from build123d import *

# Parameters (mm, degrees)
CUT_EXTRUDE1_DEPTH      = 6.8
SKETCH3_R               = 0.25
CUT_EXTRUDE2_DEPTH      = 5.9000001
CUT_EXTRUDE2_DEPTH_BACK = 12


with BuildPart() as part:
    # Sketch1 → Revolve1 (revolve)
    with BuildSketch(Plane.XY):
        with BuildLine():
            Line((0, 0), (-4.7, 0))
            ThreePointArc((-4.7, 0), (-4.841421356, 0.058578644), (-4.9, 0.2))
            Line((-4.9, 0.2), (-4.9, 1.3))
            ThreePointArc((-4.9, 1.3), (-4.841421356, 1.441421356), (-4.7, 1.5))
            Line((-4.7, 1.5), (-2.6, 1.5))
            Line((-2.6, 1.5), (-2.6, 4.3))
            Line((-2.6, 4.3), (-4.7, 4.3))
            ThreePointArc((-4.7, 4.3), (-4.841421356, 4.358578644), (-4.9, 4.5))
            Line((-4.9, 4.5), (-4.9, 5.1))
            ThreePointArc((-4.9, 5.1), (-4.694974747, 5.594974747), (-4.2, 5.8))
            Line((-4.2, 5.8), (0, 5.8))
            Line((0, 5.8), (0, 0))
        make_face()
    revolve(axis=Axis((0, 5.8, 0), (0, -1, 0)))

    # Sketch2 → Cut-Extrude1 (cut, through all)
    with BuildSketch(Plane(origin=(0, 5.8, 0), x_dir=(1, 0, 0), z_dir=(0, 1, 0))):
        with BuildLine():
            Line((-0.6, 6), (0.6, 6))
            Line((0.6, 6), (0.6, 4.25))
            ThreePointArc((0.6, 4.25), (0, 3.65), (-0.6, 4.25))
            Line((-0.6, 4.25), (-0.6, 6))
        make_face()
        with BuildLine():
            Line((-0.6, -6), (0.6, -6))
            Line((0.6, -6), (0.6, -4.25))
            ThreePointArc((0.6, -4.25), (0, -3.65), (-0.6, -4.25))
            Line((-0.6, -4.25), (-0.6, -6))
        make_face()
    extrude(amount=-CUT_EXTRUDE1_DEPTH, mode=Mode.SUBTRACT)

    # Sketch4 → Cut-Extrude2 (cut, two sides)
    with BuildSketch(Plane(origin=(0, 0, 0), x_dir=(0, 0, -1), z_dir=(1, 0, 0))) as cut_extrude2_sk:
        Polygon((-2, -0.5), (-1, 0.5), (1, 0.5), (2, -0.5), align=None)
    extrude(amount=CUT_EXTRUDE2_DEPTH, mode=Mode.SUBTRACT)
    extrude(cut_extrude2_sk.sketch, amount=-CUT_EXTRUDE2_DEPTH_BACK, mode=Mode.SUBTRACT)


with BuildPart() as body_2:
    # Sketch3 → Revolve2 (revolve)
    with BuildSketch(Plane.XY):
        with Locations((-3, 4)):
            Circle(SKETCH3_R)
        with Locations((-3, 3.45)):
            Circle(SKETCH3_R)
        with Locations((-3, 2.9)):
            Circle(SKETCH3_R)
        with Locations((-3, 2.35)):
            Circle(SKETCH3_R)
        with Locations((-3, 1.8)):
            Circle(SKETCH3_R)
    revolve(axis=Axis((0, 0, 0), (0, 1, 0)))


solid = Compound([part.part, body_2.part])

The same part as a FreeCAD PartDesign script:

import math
import FreeCAD as App
import Part
import Sketcher

V = App.Vector


def add_polygon(sketch, points):
    """Adds a closed chain of lines whose ends are joined by coincident constraints."""
    first, n = sketch.GeometryCount, len(points)
    for a, b in zip(points, points[1:] + points[:1]):
        sketch.addGeometry(Part.LineSegment(App.Vector(*a, 0), App.Vector(*b, 0)), False)
    for i in range(n):
        sketch.addConstraint(Sketcher.Constraint("Coincident", first + i, 2, first + (i + 1) % n, 1))

doc = App.newDocument("Part")
params = doc.addObject("Spreadsheet::Sheet", "Params")
for row, (alias, value) in enumerate([
    ("sketch1_radius", "0.7 mm"),
    ("sketch1_radius2", "0.2 mm"),
    ("sketch1_width", "4.7 mm"),
    ("sketch1_width2", "2.1 mm"),
    ("sketch1_height", "5.8 mm"),
    ("revolution_angle", "360 deg"),
    ("sketch2_radius", "0.6 mm"),
    ("sketch2_height", "1.75 mm"),
    ("sketch3_height", "4 mm"),
    ("sketch3_height2", "2 mm"),
    ("sketch4_diameter", "0.5 mm"),
    ("revolution2_angle", "360 deg"),
], start=1):
    params.set(f"A{row}", alias)
    params.set(f"B{row}", "=" + value)
    params.setAlias(f"B{row}", alias)

body = doc.addObject("PartDesign::Body", "Body")

sketch1 = doc.addObject("Sketcher::SketchObject", "Sketch")
body.addObject(sketch1)
sketch1.AttachmentSupport = (doc.XY_Plane, [""])
sketch1.MapMode = "FlatFace"
sketch1.addGeometry([
    Part.LineSegment(V(-4.7, 0, 0), V(0, 0, 0)),
    Part.LineSegment(V(0, 0, 0), V(0, 5.8, 0)),
    Part.LineSegment(V(0, 5.8, 0), V(-4.2, 5.8, 0)),
    Part.ArcOfCircle(Part.Circle(V(-4.2, 5.1, 0), V(0, 0, 1), 0.7), math.radians(90), math.radians(180)),
    Part.LineSegment(V(-4.9, 5.1, 0), V(-4.9, 4.5, 0)),
    Part.ArcOfCircle(Part.Circle(V(-4.7, 4.5, 0), V(0, 0, 1), 0.2), math.radians(-180), math.radians(-90)),
    Part.LineSegment(V(-4.7, 4.3, 0), V(-2.6, 4.3, 0)),
    Part.LineSegment(V(-2.6, 4.3, 0), V(-2.6, 1.5, 0)),
    Part.LineSegment(V(-2.6, 1.5, 0), V(-4.7, 1.5, 0)),
    Part.ArcOfCircle(Part.Circle(V(-4.7, 1.3, 0), V(0, 0, 1), 0.2), math.radians(90), math.radians(180)),
    Part.LineSegment(V(-4.9, 1.3, 0), V(-4.9, 0.2, 0)),
    Part.ArcOfCircle(Part.Circle(V(-4.7, 0.2, 0), V(0, 0, 1), 0.2), math.radians(-180), math.radians(-90)),
], False)
sketch1.addConstraint([
    Sketcher.Constraint("Coincident", 0, 2, 1, 1),
    Sketcher.Constraint("Coincident", 1, 2, 2, 1),
    Sketcher.Constraint("Tangent", 2, 2, 3, 1),
    Sketcher.Constraint("Tangent", 3, 2, 4, 1),
    Sketcher.Constraint("Tangent", 4, 2, 5, 1),
    Sketcher.Constraint("Tangent", 5, 2, 6, 1),
    Sketcher.Constraint("Coincident", 6, 2, 7, 1),
    Sketcher.Constraint("Coincident", 7, 2, 8, 1),
    Sketcher.Constraint("Tangent", 8, 2, 9, 1),
    Sketcher.Constraint("Tangent", 9, 2, 10, 1),
    Sketcher.Constraint("Tangent", 10, 2, 11, 1),
    Sketcher.Constraint("Tangent", 11, 2, 0, 1),
    Sketcher.Constraint("Horizontal", 0),
    Sketcher.Constraint("Vertical", 1),
    Sketcher.Constraint("Horizontal", 2),
    Sketcher.Constraint("Vertical", 4),
    Sketcher.Constraint("Horizontal", 6),
    Sketcher.Constraint("Vertical", 7),
    Sketcher.Constraint("Horizontal", 8),
    Sketcher.Constraint("Vertical", 10),
    Sketcher.Constraint("Coincident", 0, 2, -1, 1),
    Sketcher.Constraint("Equal", 5, 9),
    Sketcher.Constraint("Equal", 9, 11),
    Sketcher.Constraint("Vertical", 5, 3, 9, 3),
    Sketcher.Constraint("Radius", 3, 0.7),
    Sketcher.Constraint("Radius", 5, 0.2),
    Sketcher.Constraint("DistanceX", 0, 1, 0, 2, 4.7),
    Sketcher.Constraint("DistanceX", 6, 1, 6, 2, 2.1),
    Sketcher.Constraint("DistanceY", 1, 1, 1, 2, 5.8),
    Sketcher.Constraint("DistanceY", 4, 2, 4, 1, 0.6),
    Sketcher.Constraint("DistanceY", 7, 2, 7, 1, 2.8),
])
sketch1.setExpression("Constraints[24]", "Params.sketch1_radius")
sketch1.setExpression("Constraints[25]", "Params.sketch1_radius2")
sketch1.setExpression("Constraints[26]", "Params.sketch1_width")
sketch1.setExpression("Constraints[27]", "Params.sketch1_width2")
sketch1.setExpression("Constraints[28]", "Params.sketch1_height")
revolution = doc.addObject("PartDesign::Revolution", "Revolution")
body.addObject(revolution)
revolution.Profile = sketch1
revolution.ReferenceAxis = (sketch1, ["V_Axis"])
revolution.setExpression("Angle", "Params.revolution_angle")

sketch2 = doc.addObject("Sketcher::SketchObject", "Sketch001")
body.addObject(sketch2)
sketch2.AttachmentSupport = (doc.XZ_Plane, [""])
sketch2.MapMode = "FlatFace"
sketch2.AttachmentOffset = App.Placement(V(0, 0, -5.8), App.Rotation())
sketch2.addGeometry([
    Part.LineSegment(V(0.6, -6, 0), V(-0.6, -6, 0)),
    Part.LineSegment(V(-0.6, -6, 0), V(-0.6, -4.25, 0)),
    Part.ArcOfCircle(Part.Circle(V(0, -4.25, 0), V(0, 0, 1), 0.6), math.radians(0), math.radians(180)),
    Part.LineSegment(V(0.6, -4.25, 0), V(0.6, -6, 0)),
    Part.LineSegment(V(-0.6, 6, 0), V(0.6, 6, 0)),
    Part.LineSegment(V(0.6, 6, 0), V(0.6, 4.25, 0)),
    Part.ArcOfCircle(Part.Circle(V(0, 4.25, 0), V(0, 0, 1), 0.6), math.radians(180), math.radians(360)),
    Part.LineSegment(V(-0.6, 4.25, 0), V(-0.6, 6, 0)),
], False)
sketch2.addConstraint([
    Sketcher.Constraint("Coincident", 0, 2, 1, 1),
    Sketcher.Constraint("Tangent", 1, 2, 2, 2),
    Sketcher.Constraint("Tangent", 2, 1, 3, 1),
    Sketcher.Constraint("Coincident", 3, 2, 0, 1),
    Sketcher.Constraint("Coincident", 4, 2, 5, 1),
    Sketcher.Constraint("Tangent", 5, 2, 6, 2),
    Sketcher.Constraint("Tangent", 6, 1, 7, 1),
    Sketcher.Constraint("Coincident", 7, 2, 4, 1),
    Sketcher.Constraint("Horizontal", 0),
    Sketcher.Constraint("Vertical", 1),
    Sketcher.Constraint("Vertical", 3),
    Sketcher.Constraint("Horizontal", 4),
    Sketcher.Constraint("Vertical", 5),
    Sketcher.Constraint("Vertical", 7),
    Sketcher.Constraint("Equal", 2, 6),
    Sketcher.Constraint("Symmetric", 2, 3, 6, 3, -1, 1),
    Sketcher.Constraint("Symmetric", 3, 2, 4, 2, -1),
    Sketcher.Constraint("Radius", 2, 0.6),
    Sketcher.Constraint("DistanceY", 0, 2, -1, 1, 6.0),
    Sketcher.Constraint("DistanceY", 1, 1, 1, 2, 1.75),
])
sketch2.setExpression("Constraints[17]", "Params.sketch2_radius")
sketch2.setExpression("Constraints[19]", "Params.sketch2_height")
pocket1 = doc.addObject("PartDesign::Pocket", "Pocket")
body.addObject(pocket1)
pocket1.Profile = sketch2
pocket1.Type = "ThroughAll"
pocket1.Reversed = True

sketch3 = doc.addObject("Sketcher::SketchObject", "Sketch002")
body.addObject(sketch3)
sketch3.AttachmentSupport = (doc.YZ_Plane, [""])
sketch3.MapMode = "FlatFace"
add_polygon(sketch3, [(0.5, 1), (-0.5, 2), (-0.5, -2), (0.5, -1)])
sketch3.addConstraint([
    Sketcher.Constraint("Vertical", 1),
    Sketcher.Constraint("Vertical", 3),
    Sketcher.Constraint("Perpendicular", 0, 2),
    Sketcher.Constraint("Equal", 0, 2),
    Sketcher.Constraint("DistanceY", 1, 2, 1, 1, 4.0),
    Sketcher.Constraint("DistanceY", 3, 1, 3, 2, 2.0),
    Sketcher.Constraint("DistanceY", -1, 1, 0, 2, 2.0),
    Sketcher.Constraint("DistanceX", 0, 2, -1, 1, 0.5),
])
sketch3.setExpression("Constraints[8]", "Params.sketch3_height")
sketch3.setExpression("Constraints[9]", "Params.sketch3_height2")
pocket2 = doc.addObject("PartDesign::Pocket", "Pocket001")
body.addObject(pocket2)
pocket2.Profile = sketch3
pocket2.Type = "ThroughAll"
pocket2.Midplane = True
body2 = doc.addObject("PartDesign::Body", "Body001")
body2.AllowCompound = True

sketch4 = doc.addObject("Sketcher::SketchObject", "Sketch003")
body2.addObject(sketch4)
sketch4.AttachmentSupport = (doc.getObject("XY_Plane001"), [""])
sketch4.MapMode = "FlatFace"
sketch4.addGeometry([
    Part.Circle(V(-3, 4, 0), V(0, 0, 1), 0.25),
    Part.Circle(V(-3, 3.45, 0), V(0, 0, 1), 0.25),
    Part.Circle(V(-3, 2.9, 0), V(0, 0, 1), 0.25),
    Part.Circle(V(-3, 2.35, 0), V(0, 0, 1), 0.25),
    Part.Circle(V(-3, 1.8, 0), V(0, 0, 1), 0.25),
], False)
sketch4.addConstraint([
    Sketcher.Constraint("Equal", 0, 1),
    Sketcher.Constraint("Equal", 1, 2),
    Sketcher.Constraint("Equal", 2, 3),
    Sketcher.Constraint("Equal", 3, 4),
    Sketcher.Constraint("Vertical", 0, 3, 1, 3),
    Sketcher.Constraint("Vertical", 1, 3, 2, 3),
    Sketcher.Constraint("Vertical", 2, 3, 3, 3),
    Sketcher.Constraint("Vertical", 3, 3, 4, 3),
    Sketcher.Constraint("Diameter", 0, 0.5),
    Sketcher.Constraint("DistanceX", 0, 3, -1, 1, 3.0),
    Sketcher.Constraint("DistanceY", -1, 1, 0, 3, 4.0),
    Sketcher.Constraint("DistanceY", -1, 1, 2, 3, 2.9),
    Sketcher.Constraint("DistanceY", -1, 1, 4, 3, 1.8),
    Sketcher.Constraint("DistanceY", 3, 3, 1, 3, 1.1),
    Sketcher.Constraint("DistanceY", -1, 1, 1, 3, 3.45),
])
sketch4.setExpression("Constraints[8]", "Params.sketch4_diameter")
revolution2 = doc.addObject("PartDesign::Revolution", "Revolution001")
body2.addObject(revolution2)
revolution2.Profile = sketch4
revolution2.ReferenceAxis = (sketch4, ["V_Axis"])
revolution2.setExpression("Angle", "Params.revolution2_angle")

doc.recompute()
